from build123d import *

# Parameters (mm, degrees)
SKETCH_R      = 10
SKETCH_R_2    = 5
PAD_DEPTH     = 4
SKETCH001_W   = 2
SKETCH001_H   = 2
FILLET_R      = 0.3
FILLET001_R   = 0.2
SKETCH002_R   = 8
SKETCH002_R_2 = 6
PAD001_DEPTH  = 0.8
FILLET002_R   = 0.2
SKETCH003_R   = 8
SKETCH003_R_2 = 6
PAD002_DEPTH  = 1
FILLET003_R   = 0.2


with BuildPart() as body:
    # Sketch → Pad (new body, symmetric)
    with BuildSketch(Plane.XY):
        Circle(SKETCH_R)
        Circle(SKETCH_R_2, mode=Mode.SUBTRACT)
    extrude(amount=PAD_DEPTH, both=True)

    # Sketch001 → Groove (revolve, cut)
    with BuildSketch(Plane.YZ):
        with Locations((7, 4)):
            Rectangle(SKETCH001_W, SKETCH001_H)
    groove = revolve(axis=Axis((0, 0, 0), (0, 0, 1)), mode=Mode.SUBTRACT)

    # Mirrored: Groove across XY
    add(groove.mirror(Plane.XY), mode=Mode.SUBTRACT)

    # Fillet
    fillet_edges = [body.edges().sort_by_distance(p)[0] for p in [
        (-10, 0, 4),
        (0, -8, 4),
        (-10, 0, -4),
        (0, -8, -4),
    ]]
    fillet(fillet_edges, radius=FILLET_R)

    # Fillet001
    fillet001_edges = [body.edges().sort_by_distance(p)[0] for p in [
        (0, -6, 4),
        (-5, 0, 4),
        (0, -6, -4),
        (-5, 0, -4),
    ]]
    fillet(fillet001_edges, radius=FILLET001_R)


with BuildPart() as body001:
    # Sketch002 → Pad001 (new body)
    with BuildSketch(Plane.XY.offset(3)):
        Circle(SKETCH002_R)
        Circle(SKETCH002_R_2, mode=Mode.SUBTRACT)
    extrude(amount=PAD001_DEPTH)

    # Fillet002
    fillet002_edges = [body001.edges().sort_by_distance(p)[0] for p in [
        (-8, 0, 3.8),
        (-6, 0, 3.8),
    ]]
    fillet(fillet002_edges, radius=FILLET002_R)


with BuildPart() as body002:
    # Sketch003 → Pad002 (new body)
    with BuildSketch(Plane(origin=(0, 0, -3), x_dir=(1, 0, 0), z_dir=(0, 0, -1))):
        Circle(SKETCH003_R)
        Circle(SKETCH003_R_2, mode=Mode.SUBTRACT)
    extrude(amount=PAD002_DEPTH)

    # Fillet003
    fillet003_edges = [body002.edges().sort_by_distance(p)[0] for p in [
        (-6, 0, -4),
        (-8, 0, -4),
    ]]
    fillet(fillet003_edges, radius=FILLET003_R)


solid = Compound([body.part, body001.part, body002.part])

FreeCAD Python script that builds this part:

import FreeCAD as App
import Part
import Sketcher
Q = App.Units.Quantity


def edges_at(feature, points):
    """Names of the edges that pass closest to the given points."""
    edges = feature.Shape.Edges
    near = lambda p: min(range(len(edges)), key=lambda i: edges[i].distToShape(Part.Vertex(*p))[0])
    return sorted({f"Edge{near(p) + 1}" for p in points})


def add_polygon(sketch, points):
    """Adds a closed chain of lines whose ends are joined by coincident constraints."""
    first, n = sketch.GeometryCount, len(points)
    for a, b in zip(points, points[1:] + points[:1]):
        sketch.addGeometry(Part.LineSegment(App.Vector(*a, 0), App.Vector(*b, 0)), False)
    for i in range(n):
        sketch.addConstraint(Sketcher.Constraint("Coincident", first + i, 2, first + (i + 1) % n, 1))

doc = App.newDocument("Part")
body = doc.addObject("PartDesign::Body", "Body")

# Sketch on XY plane
sketch1 = doc.addObject("Sketcher::SketchObject", "Sketch")
body.addObject(sketch1)
sketch1.AttachmentSupport = (doc.XY_Plane, [""])
sketch1.MapMode = "FlatFace"
sketch1.addGeometry(Part.Circle(App.Vector(0, 0, 0), App.Vector(0, 0, 1), 10), False)
sketch1.addGeometry(Part.Circle(App.Vector(0, 0, 0), App.Vector(0, 0, 1), 5), False)
sketch1.addConstraint(Sketcher.Constraint("Coincident", 0, 3, -1, 1))
sketch1.addConstraint(Sketcher.Constraint("Coincident", 1, 3, -1, 1))
sketch1.addConstraint(Sketcher.Constraint("Diameter", 0, Q("20 mm")))
sketch1.addConstraint(Sketcher.Constraint("Diameter", 1, Q("10 mm")))
pad1 = doc.addObject("PartDesign::Pad", "Pad")
body.addObject(pad1)
pad1.Profile = sketch1
pad1.Length = 8
pad1.Midplane = True

# Sketch on YZ plane
sketch2 = doc.addObject("Sketcher::SketchObject", "Sketch001")
body.addObject(sketch2)
sketch2.AttachmentSupport = (doc.YZ_Plane, [""])
sketch2.MapMode = "FlatFace"
add_polygon(sketch2, [(6, 5), (6, 3), (8, 3), (8, 5)])  # lines 0-3
sketch2.addConstraint(Sketcher.Constraint("Vertical", 0))
sketch2.addConstraint(Sketcher.Constraint("Horizontal", 1))
sketch2.addConstraint(Sketcher.Constraint("Vertical", 2))
sketch2.addConstraint(Sketcher.Constraint("Horizontal", 3))
sketch2.addConstraint(Sketcher.Constraint("Equal", 3, 0))
sketch2.addConstraint(Sketcher.Constraint("DistanceX", 1, 1, 1, 2, Q("2 mm")))
sketch2.addConstraint(Sketcher.Constraint("DistanceX", -1, 1, 0, 2, Q("6 mm")))
sketch2.addConstraint(Sketcher.Constraint("DistanceY", -1, 1, 0, 2, Q("3 mm")))
groove = doc.addObject("PartDesign::Groove", "Groove")
body.addObject(groove)
groove.Profile = sketch2
groove.ReferenceAxis = (sketch2, ["V_Axis"])
groove.Angle = 360
doc.recompute()

mirrored = doc.addObject("PartDesign::Mirrored", "Mirrored")
body.addObject(mirrored)
mirrored.Originals = [groove]
mirrored.MirrorPlane = (doc.XY_Plane, [""])
body.Tip = mirrored
doc.recompute()

fillet = doc.addObject("PartDesign::Fillet", "Fillet")
body.addObject(fillet)
fillet.Base = (mirrored, edges_at(mirrored, [
    (-10, 0, 4),
    (0, -8, 4),
    (-10, 0, -4),
    (0, -8, -4),
]))
fillet.Radius = 0.3
doc.recompute()

fillet2 = doc.addObject("PartDesign::Fillet", "Fillet001")
body.addObject(fillet2)
fillet2.Base = (fillet, edges_at(fillet, [
    (0, -6, 4),
    (-5, 0, 4),
    (0, -6, -4),
    (-5, 0, -4),
]))
fillet2.Radius = 0.2
body2 = doc.addObject("PartDesign::Body", "Body001")

# Sketch on XY plane
sketch3 = doc.addObject("Sketcher::SketchObject", "Sketch002")
body2.addObject(sketch3)
sketch3.AttachmentSupport = (doc.getObject("XY_Plane001"), [""])
sketch3.MapMode = "FlatFace"
sketch3.AttachmentOffset = App.Placement(App.Vector(0, 0, 3), App.Rotation())
sketch3.addGeometry(Part.Circle(App.Vector(0, 0, 0), App.Vector(0, 0, 1), 8), False)
sketch3.addGeometry(Part.Circle(App.Vector(0, 0, 0), App.Vector(0, 0, 1), 6), False)
sketch3.addConstraint(Sketcher.Constraint("Coincident", 0, 3, -1, 1))
sketch3.addConstraint(Sketcher.Constraint("Coincident", 1, 3, -1, 1))
sketch3.addConstraint(Sketcher.Constraint("Diameter", 0, Q("16 mm")))
sketch3.addConstraint(Sketcher.Constraint("Diameter", 1, Q("12 mm")))
pad2 = doc.addObject("PartDesign::Pad", "Pad001")
body2.addObject(pad2)
pad2.Profile = sketch3
pad2.Length = 0.8
doc.recompute()

fillet3 = doc.addObject("PartDesign::Fillet", "Fillet002")
body2.addObject(fillet3)
fillet3.Base = (pad2, edges_at(pad2, [(-8, 0, 3.8), (-6, 0, 3.8)]))
fillet3.Radius = 0.2
body3 = doc.addObject("PartDesign::Body", "Body002")

# Sketch on XY plane
sketch4 = doc.addObject("Sketcher::SketchObject", "Sketch003")
body3.addObject(sketch4)
sketch4.AttachmentSupport = (doc.getObject("XY_Plane002"), [""])
sketch4.MapMode = "FlatFace"
sketch4.AttachmentOffset = App.Placement(App.Vector(0, 0, -3), App.Rotation())
sketch4.addGeometry(Part.Circle(App.Vector(0, 0, 0), App.Vector(0, 0, 1), 8), False)
sketch4.addGeometry(Part.Circle(App.Vector(0, 0, 0), App.Vector(0, 0, 1), 6), False)
sketch4.addConstraint(Sketcher.Constraint("Coincident", 0, 3, -1, 1))
sketch4.addConstraint(Sketcher.Constraint("Coincident", 1, 3, -1, 1))
sketch4.addConstraint(Sketcher.Constraint("Diameter", 0, Q("16 mm")))
sketch4.addConstraint(Sketcher.Constraint("Diameter", 1, Q("12 mm")))
pad3 = doc.addObject("PartDesign::Pad", "Pad002")
body3.addObject(pad3)
pad3.Profile = sketch4
pad3.Length = 1
pad3.Reversed = True
doc.recompute()

fillet4 = doc.addObject("PartDesign::Fillet", "Fillet003")
body3.addObject(fillet4)
fillet4.Base = (pad3, edges_at(pad3, [(-6, 0, -4), (-8, 0, -4)]))
fillet4.Radius = 0.2

doc.recompute()
